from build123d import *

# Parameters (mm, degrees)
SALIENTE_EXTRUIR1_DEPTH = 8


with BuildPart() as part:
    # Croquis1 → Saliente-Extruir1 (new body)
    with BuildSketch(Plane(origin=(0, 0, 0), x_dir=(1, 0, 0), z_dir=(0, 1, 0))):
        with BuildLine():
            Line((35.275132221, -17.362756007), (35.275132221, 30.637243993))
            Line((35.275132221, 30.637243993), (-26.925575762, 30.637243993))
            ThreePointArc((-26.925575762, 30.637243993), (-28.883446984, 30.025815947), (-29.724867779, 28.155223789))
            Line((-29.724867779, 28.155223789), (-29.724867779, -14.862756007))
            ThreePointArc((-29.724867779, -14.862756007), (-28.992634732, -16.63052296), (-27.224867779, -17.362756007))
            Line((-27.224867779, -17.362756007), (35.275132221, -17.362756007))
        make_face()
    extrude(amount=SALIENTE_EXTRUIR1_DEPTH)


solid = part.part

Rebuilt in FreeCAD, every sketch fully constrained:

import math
import FreeCAD as App
import Part
import Sketcher
from FreeCAD import Vector
Q = App.Units.Quantity

doc = App.newDocument("Part")
params = doc.addObject("Spreadsheet::Sheet", "Params")
for row, (alias, value) in enumerate([
    ("sketch1_radius", "2.5 mm"),
    ("sketch1_height", "48 mm"),
    ("sketch1_width", "62.5 mm"),
    ("pad1_length", "8 mm"),
], start=1):
    params.set(f"A{row}", alias)
    params.set(f"B{row}", "=" + value)
    params.setAlias(f"B{row}", alias)

body = doc.addObject("PartDesign::Body", "Body")

sketch1 = body.newObject("Sketcher::SketchObject", "Sketch")
sketch1.AttachmentSupport = (doc.getObject("XZ_Plane"), [""])
sketch1.MapMode = "FlatFace"
sketch1.addGeometry(Part.LineSegment(Vector(35.3, 17.4, 0), Vector(35.3, -30.6, 0)), False)
sketch1.addGeometry(Part.LineSegment(Vector(35.3, -30.6, 0), Vector(-26.9, -30.6, 0)), False)
sketch1.addGeometry(Part.ArcOfCircle(Part.Circle(Vector(-27.2, -28.2, 0), Vector(0, 0, 1), 2.5), math.radians(180), math.radians(277)), False)
sketch1.addGeometry(Part.LineSegment(Vector(-29.7, -28.2, 0), Vector(-29.7, 14.9, 0)), False)
sketch1.addGeometry(Part.ArcOfCircle(Part.Circle(Vector(-27.2, 14.9, 0), Vector(0, 0, 1), 2.5), math.radians(90), math.radians(180)), False)
sketch1.addGeometry(Part.LineSegment(Vector(-27.2, 17.4, 0), Vector(35.3, 17.4, 0)), False)
sketch1.addConstraint(Sketcher.Constraint("Coincident", 0, 2, 1, 1))
sketch1.addConstraint(Sketcher.Constraint("Coincident", 1, 2, 2, 2))
sketch1.addConstraint(Sketcher.Constraint("Tangent", 2, 1, 3, 1))
sketch1.addConstraint(Sketcher.Constraint("Tangent", 3, 2, 4, 2))
sketch1.addConstraint(Sketcher.Constraint("Tangent", 4, 1, 5, 1))
sketch1.addConstraint(Sketcher.Constraint("Coincident", 5, 2, 0, 1))
sketch1.addConstraint(Sketcher.Constraint("Vertical", 0))
sketch1.addConstraint(Sketcher.Constraint("Horizontal", 1))
sketch1.addConstraint(Sketcher.Constraint("Vertical", 3))
sketch1.addConstraint(Sketcher.Constraint("Horizontal", 5))
sketch1.addConstraint(Sketcher.Constraint("Equal", 2, 4))
sketch1.addConstraint(Sketcher.Constraint("Radius", 2, Q("2.5 mm")))
sketch1.addConstraint(Sketcher.Constraint("DistanceY", 0, 2, 0, 1, Q("48 mm")))
sketch1.addConstraint(Sketcher.Constraint("DistanceX", 5, 1, 5, 2, Q("62.5 mm")))
sketch1.addConstraint(Sketcher.Constraint("DistanceY", 3, 1, 3, 2, Q("43.01798 mm")))
sketch1.addConstraint(Sketcher.Constraint("DistanceX", 2, 3, -1, 1, Q("27.224868 mm")))
sketch1.addConstraint(Sketcher.Constraint("DistanceY", 2, 3, -1, 1, Q("28.155224 mm")))
sketch1.setExpression("Constraints[11]", "Params.sketch1_radius")
sketch1.setExpression("Constraints[12]", "Params.sketch1_height")
sketch1.setExpression("Constraints[13]", "Params.sketch1_width")
pad1 = body.newObject("PartDesign::Pad", "Pad")
pad1.Profile = sketch1
pad1.setExpression("Length", "Params.pad1_length")
pad1.Reversed = True

doc.recompute()
